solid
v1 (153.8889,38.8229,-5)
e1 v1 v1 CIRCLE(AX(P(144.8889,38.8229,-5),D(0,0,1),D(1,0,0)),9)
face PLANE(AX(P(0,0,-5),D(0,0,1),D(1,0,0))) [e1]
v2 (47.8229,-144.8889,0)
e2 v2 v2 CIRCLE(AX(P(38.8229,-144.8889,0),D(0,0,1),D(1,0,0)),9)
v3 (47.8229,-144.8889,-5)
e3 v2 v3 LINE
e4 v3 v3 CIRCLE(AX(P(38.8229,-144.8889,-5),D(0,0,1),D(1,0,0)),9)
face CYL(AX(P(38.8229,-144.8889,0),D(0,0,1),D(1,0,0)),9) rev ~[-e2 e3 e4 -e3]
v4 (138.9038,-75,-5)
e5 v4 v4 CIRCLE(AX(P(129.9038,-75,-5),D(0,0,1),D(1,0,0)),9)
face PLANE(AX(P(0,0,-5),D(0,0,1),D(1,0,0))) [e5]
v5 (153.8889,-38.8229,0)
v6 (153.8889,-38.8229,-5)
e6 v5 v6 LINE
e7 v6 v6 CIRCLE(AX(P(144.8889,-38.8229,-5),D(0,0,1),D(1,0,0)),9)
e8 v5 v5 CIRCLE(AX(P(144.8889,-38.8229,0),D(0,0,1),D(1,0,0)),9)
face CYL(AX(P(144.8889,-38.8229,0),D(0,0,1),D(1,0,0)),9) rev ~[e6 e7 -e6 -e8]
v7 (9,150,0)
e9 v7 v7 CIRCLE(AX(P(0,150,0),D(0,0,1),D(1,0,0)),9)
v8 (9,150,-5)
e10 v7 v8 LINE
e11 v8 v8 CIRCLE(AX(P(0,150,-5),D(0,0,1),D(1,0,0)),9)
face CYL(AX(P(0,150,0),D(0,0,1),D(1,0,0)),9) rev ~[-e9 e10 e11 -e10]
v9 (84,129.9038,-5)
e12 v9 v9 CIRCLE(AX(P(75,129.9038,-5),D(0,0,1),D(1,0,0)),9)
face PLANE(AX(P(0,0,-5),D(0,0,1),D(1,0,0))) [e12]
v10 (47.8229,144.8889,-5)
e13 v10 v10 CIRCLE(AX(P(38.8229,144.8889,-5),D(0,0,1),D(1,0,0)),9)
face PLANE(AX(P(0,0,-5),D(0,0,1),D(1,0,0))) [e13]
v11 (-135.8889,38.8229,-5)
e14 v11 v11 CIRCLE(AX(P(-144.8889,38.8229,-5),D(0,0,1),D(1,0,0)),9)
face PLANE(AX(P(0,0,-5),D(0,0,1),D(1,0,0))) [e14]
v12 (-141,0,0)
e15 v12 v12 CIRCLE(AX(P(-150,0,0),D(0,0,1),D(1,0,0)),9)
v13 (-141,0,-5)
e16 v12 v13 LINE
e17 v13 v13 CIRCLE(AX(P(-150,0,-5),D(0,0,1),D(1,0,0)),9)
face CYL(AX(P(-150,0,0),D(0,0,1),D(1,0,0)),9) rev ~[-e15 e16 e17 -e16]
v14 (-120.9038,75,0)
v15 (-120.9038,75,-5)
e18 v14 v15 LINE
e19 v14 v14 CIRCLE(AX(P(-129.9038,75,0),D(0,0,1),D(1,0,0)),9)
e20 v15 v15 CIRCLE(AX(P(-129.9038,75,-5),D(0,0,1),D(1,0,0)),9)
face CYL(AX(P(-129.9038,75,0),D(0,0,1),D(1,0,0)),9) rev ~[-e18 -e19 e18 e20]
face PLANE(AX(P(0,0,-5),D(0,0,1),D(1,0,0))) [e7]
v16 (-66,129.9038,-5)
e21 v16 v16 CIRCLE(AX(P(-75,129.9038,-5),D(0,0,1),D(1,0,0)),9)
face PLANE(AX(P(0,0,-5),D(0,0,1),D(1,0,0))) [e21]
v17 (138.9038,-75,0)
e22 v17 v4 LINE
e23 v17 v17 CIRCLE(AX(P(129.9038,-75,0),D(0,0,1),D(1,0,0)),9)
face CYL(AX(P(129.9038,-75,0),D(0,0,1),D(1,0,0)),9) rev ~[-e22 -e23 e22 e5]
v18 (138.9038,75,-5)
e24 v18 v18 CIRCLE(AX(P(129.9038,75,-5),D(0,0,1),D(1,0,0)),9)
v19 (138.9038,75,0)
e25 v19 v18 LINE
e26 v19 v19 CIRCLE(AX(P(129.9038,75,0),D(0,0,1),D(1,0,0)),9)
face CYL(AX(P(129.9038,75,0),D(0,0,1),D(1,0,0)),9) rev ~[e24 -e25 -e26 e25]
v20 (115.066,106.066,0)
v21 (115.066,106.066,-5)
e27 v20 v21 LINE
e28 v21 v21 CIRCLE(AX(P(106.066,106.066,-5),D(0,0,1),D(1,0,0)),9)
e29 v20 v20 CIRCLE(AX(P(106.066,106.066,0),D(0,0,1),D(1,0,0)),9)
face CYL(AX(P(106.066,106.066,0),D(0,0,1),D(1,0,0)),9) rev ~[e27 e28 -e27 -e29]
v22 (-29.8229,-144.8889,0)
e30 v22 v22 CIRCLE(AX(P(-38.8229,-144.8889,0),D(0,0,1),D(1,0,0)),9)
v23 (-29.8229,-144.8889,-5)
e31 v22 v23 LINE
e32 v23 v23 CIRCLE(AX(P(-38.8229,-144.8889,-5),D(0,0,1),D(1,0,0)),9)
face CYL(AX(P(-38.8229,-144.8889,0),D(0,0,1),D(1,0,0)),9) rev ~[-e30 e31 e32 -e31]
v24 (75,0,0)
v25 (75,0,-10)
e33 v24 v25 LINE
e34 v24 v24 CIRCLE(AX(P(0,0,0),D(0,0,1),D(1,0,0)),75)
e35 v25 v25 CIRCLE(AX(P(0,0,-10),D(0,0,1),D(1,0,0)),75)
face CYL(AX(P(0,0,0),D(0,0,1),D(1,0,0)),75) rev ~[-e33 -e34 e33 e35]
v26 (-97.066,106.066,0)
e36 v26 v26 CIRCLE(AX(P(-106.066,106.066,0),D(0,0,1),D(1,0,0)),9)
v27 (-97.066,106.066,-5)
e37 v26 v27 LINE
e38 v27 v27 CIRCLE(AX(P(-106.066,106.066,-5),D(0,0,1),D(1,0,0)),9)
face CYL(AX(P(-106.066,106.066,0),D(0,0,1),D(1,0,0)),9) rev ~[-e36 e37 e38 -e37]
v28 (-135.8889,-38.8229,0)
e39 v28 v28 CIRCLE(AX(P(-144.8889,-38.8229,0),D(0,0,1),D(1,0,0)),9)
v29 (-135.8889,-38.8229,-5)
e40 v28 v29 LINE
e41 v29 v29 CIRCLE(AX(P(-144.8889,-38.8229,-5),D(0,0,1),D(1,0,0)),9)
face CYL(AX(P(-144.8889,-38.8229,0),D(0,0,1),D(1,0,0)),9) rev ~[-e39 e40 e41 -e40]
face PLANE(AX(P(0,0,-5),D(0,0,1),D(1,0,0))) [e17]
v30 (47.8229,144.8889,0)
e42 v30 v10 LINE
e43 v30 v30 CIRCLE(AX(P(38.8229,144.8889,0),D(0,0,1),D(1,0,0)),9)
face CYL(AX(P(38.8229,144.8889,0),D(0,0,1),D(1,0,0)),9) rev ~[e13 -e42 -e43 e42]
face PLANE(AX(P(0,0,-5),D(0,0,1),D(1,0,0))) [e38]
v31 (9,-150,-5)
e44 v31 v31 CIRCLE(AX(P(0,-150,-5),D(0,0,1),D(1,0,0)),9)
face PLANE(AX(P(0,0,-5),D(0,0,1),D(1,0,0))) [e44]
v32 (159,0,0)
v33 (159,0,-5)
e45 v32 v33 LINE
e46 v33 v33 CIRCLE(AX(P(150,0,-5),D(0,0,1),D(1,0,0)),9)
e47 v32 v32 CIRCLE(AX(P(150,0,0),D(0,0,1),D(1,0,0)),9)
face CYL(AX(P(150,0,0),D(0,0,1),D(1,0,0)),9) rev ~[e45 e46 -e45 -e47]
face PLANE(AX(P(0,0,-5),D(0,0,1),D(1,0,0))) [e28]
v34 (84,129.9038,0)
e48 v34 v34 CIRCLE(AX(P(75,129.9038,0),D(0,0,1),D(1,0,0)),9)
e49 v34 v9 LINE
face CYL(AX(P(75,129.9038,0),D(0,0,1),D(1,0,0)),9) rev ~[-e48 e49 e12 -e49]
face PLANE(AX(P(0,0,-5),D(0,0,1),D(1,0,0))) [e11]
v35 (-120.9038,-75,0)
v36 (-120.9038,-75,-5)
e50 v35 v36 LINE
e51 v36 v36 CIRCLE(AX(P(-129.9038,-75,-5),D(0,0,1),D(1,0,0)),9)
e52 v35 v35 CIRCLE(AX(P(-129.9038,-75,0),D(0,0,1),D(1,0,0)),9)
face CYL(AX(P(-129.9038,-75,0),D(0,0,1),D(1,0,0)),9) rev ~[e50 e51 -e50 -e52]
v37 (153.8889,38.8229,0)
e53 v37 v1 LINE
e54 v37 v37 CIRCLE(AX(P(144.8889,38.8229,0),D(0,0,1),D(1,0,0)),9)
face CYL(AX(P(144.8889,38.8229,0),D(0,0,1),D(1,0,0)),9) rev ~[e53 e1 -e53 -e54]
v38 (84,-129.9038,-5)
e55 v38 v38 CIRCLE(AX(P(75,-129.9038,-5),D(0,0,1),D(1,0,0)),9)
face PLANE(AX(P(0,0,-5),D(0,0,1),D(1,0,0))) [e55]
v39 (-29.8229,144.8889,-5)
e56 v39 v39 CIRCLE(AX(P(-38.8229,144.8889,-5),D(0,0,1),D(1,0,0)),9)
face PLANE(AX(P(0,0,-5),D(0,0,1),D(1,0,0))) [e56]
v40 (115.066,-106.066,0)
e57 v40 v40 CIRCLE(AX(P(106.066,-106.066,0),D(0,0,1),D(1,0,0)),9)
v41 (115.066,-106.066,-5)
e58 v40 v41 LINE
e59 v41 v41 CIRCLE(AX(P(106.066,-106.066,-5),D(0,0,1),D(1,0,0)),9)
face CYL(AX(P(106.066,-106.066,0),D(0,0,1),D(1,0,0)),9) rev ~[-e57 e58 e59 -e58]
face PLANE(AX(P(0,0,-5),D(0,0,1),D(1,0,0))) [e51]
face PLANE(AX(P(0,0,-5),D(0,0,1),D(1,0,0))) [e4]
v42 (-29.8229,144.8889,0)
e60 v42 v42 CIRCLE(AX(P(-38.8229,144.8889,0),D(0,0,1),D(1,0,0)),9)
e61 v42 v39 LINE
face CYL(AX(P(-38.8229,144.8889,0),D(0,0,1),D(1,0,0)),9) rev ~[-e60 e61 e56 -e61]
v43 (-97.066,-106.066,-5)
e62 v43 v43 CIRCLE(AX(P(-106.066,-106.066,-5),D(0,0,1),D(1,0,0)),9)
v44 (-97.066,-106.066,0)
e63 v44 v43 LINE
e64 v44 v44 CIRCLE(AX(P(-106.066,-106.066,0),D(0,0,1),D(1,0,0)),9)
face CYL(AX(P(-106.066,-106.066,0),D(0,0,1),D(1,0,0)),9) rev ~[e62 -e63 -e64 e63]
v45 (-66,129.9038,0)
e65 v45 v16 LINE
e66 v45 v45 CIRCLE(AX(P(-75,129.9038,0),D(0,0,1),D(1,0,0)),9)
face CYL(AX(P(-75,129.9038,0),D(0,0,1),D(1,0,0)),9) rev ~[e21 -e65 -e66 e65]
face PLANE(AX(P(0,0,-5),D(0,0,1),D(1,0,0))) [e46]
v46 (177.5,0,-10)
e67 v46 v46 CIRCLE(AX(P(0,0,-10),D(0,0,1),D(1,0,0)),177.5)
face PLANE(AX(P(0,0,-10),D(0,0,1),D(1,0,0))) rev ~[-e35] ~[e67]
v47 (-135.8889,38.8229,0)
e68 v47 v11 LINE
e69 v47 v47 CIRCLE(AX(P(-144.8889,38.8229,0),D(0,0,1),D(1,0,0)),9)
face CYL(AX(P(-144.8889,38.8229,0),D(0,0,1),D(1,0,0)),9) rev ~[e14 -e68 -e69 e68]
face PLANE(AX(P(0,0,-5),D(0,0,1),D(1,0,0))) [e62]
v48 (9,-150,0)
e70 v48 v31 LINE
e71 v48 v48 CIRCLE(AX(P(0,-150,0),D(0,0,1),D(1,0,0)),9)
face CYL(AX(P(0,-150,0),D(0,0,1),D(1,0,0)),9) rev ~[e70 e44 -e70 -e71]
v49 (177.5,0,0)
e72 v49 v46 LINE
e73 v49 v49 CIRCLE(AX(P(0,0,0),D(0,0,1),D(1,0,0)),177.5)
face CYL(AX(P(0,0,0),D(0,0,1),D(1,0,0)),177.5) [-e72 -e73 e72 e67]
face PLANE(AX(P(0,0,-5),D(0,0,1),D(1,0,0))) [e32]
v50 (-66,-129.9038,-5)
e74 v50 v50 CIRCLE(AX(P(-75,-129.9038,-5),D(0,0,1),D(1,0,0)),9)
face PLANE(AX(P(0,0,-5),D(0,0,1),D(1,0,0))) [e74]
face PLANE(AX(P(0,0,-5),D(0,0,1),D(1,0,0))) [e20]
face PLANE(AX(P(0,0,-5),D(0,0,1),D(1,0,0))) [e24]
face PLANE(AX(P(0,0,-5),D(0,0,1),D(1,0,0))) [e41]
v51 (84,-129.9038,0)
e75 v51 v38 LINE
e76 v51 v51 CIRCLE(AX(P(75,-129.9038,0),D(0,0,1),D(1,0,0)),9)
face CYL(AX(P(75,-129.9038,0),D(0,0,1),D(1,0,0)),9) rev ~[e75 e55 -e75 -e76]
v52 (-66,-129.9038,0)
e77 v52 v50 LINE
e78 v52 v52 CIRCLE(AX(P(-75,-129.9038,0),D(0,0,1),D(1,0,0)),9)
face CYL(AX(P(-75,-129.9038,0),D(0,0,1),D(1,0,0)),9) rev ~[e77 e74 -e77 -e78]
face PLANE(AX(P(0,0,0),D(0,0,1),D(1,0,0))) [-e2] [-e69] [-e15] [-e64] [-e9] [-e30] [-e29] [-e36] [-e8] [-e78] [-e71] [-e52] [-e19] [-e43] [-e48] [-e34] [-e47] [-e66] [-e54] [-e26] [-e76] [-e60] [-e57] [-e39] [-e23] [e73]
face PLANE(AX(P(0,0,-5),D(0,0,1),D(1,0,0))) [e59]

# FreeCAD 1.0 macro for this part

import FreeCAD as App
import Part
import Sketcher

V = App.Vector

doc = App.newDocument("Part")
params = doc.addObject("Spreadsheet::Sheet", "Params")
for row, (alias, value) in enumerate([
    ("sketch1_diameter", "355 mm"),
    ("pad1_length", "10 mm"),
    ("sketch2_diameter", "18 mm"),
    ("pocket1_length", "5 mm"),
    ("sketch3_diameter", "150 mm"),
    ("pocket2_length", "10 mm"),
], start=1):
    params.set(f"A{row}", alias)
    params.set(f"B{row}", "=" + value)
    params.setAlias(f"B{row}", alias)

body = doc.addObject("PartDesign::Body", "Body")

sketch1 = doc.addObject("Sketcher::SketchObject", "Sketch")
body.addObject(sketch1)
sketch1.AttachmentSupport = (doc.XY_Plane, [""])
sketch1.MapMode = "FlatFace"
sketch1.addGeometry(Part.Circle(V(0, 0, 0), V(0, 0, 1), 177.5), False)
sketch1.addConstraint(Sketcher.Constraint("Coincident", 0, 3, -1, 1))
sketch1.addConstraint(Sketcher.Constraint("Diameter", 0, 355.0))
sketch1.setExpression("Constraints[1]", "Params.sketch1_diameter")
pad1 = doc.addObject("PartDesign::Pad", "Pad")
body.addObject(pad1)
pad1.Profile = sketch1
pad1.setExpression("Length", "Params.pad1_length")
pad1.Reversed = True

sketch2 = doc.addObject("Sketcher::SketchObject", "Sketch001")
body.addObject(sketch2)
sketch2.AttachmentSupport = (doc.XY_Plane, [""])
sketch2.MapMode = "FlatFace"
sketch2.addGeometry(Part.Circle(V(150, 0, 0), V(0, 0, 1), 9), False)
sketch2.addGeometry(Part.Circle(V(144.8889, 38.8229, 0), V(0, 0, 1), 9), False)
sketch2.addGeometry(Part.Circle(V(129.9038, 75, 0), V(0, 0, 1), 9), False)
sketch2.addGeometry(Part.Circle(V(106.066, 106.066, 0), V(0, 0, 1), 9), False)
sketch2.addGeometry(Part.Circle(V(75, 129.9038, 0), V(0, 0, 1), 9), False)
sketch2.addGeometry(Part.Circle(V(38.8229, 144.8889, 0), V(0, 0, 1), 9), False)
sketch2.addGeometry(Part.Circle(V(0, 150, 0), V(0, 0, 1), 9), False)
sketch2.addGeometry(Part.Circle(V(-38.8229, 144.8889, 0), V(0, 0, 1), 9), False)
sketch2.addGeometry(Part.Circle(V(-75, 129.9038, 0), V(0, 0, 1), 9), False)
sketch2.addGeometry(Part.Circle(V(-106.066, 106.066, 0), V(0, 0, 1), 9), False)
sketch2.addGeometry(Part.Circle(V(-129.9038, 75, 0), V(0, 0, 1), 9), False)
sketch2.addGeometry(Part.Circle(V(-144.8889, 38.8229, 0), V(0, 0, 1), 9), False)
sketch2.addGeometry(Part.Circle(V(-150, 0, 0), V(0, 0, 1), 9), False)
sketch2.addGeometry(Part.Circle(V(-144.8889, -38.8229, 0), V(0, 0, 1), 9), False)
sketch2.addGeometry(Part.Circle(V(-129.9038, -75, 0), V(0, 0, 1), 9), False)
sketch2.addGeometry(Part.Circle(V(-106.066, -106.066, 0), V(0, 0, 1), 9), False)
sketch2.addGeometry(Part.Circle(V(-75, -129.9038, 0), V(0, 0, 1), 9), False)
sketch2.addGeometry(Part.Circle(V(-38.8229, -144.8889, 0), V(0, 0, 1), 9), False)
sketch2.addGeometry(Part.Circle(V(0, -150, 0), V(0, 0, 1), 9), False)
sketch2.addGeometry(Part.Circle(V(38.8229, -144.8889, 0), V(0, 0, 1), 9), False)
sketch2.addGeometry(Part.Circle(V(75, -129.9038, 0), V(0, 0, 1), 9), False)
sketch2.addGeometry(Part.Circle(V(106.066, -106.066, 0), V(0, 0, 1), 9), False)
sketch2.addGeometry(Part.Circle(V(129.9038, -75, 0), V(0, 0, 1), 9), False)
sketch2.addGeometry(Part.Circle(V(144.8889, -38.8229, 0), V(0, 0, 1), 9), False)
sketch2.addConstraint(Sketcher.Constraint("Equal", 0, 1))
sketch2.addConstraint(Sketcher.Constraint("Equal", 1, 2))
sketch2.addConstraint(Sketcher.Constraint("Equal", 2, 3))
sketch2.addConstraint(Sketcher.Constraint("Equal", 3, 4))
sketch2.addConstraint(Sketcher.Constraint("Equal", 4, 5))
sketch2.addConstraint(Sketcher.Constraint("Equal", 5, 6))
sketch2.addConstraint(Sketcher.Constraint("Equal", 6, 7))
sketch2.addConstraint(Sketcher.Constraint("Equal", 7, 8))
sketch2.addConstraint(Sketcher.Constraint("Equal", 8, 9))
sketch2.addConstraint(Sketcher.Constraint("Equal", 9, 10))
sketch2.addConstraint(Sketcher.Constraint("Equal", 10, 11))
sketch2.addConstraint(Sketcher.Constraint("Equal", 11, 12))
sketch2.addConstraint(Sketcher.Constraint("Equal", 12, 13))
sketch2.addConstraint(Sketcher.Constraint("Equal", 13, 14))
sketch2.addConstraint(Sketcher.Constraint("Equal", 14, 15))
sketch2.addConstraint(Sketcher.Constraint("Equal", 15, 16))
sketch2.addConstraint(Sketcher.Constraint("Equal", 16, 17))
sketch2.addConstraint(Sketcher.Constraint("Equal", 17, 18))
sketch2.addConstraint(Sketcher.Constraint("Equal", 18, 19))
sketch2.addConstraint(Sketcher.Constraint("Equal", 19, 20))
sketch2.addConstraint(Sketcher.Constraint("Equal", 20, 21))
sketch2.addConstraint(Sketcher.Constraint("Equal", 21, 22))
sketch2.addConstraint(Sketcher.Constraint("Equal", 22, 23))
sketch2.addConstraint(Sketcher.Constraint("Symmetric", 0, 3, 12, 3, -1, 1))
sketch2.addConstraint(Sketcher.Constraint("Symmetric", 1, 3, 13, 3, -1, 1))
sketch2.addConstraint(Sketcher.Constraint("Symmetric", 2, 3, 14, 3, -1, 1))
sketch2.addConstraint(Sketcher.Constraint("Symmetric", 3, 3, 15, 3, -1, 1))
sketch2.addConstraint(Sketcher.Constraint("Symmetric", 4, 3, 16, 3, -1, 1))
sketch2.addConstraint(Sketcher.Constraint("Symmetric", 5, 3, 17, 3, -1, 1))
sketch2.addConstraint(Sketcher.Constraint("Symmetric", 6, 3, 18, 3, -1, 1))
sketch2.addConstraint(Sketcher.Constraint("Symmetric", 7, 3, 19, 3, -1, 1))
sketch2.addConstraint(Sketcher.Constraint("Symmetric", 8, 3, 20, 3, -1, 1))
sketch2.addConstraint(Sketcher.Constraint("Symmetric", 9, 3, 21, 3, -1, 1))
sketch2.addConstraint(Sketcher.Constraint("Symmetric", 10, 3, 22, 3, -1, 1))
sketch2.addConstraint(Sketcher.Constraint("Symmetric", 11, 3, 23, 3, -1, 1))
sketch2.addConstraint(Sketcher.Constraint("Symmetric", 5, 3, 7, 3, -2))
sketch2.addConstraint(Sketcher.Constraint("Symmetric", 4, 3, 8, 3, -2))
sketch2.addConstraint(Sketcher.Constraint("Symmetric", 3, 3, 9, 3, -2))
sketch2.addConstraint(Sketcher.Constraint("Symmetric", 2, 3, 10, 3, -2))
sketch2.addConstraint(Sketcher.Constraint("Symmetric", 1, 3, 11, 3, -2))
sketch2.addConstraint(Sketcher.Constraint("PointOnObject", 0, 3, -1))
sketch2.addConstraint(Sketcher.Constraint("PointOnObject", 6, 3, -2))
sketch2.addConstraint(Sketcher.Constraint("Diameter", 0, 18.0))
sketch2.addConstraint(Sketcher.Constraint("DistanceX", -1, 1, 0, 3, 150.0))
sketch2.addConstraint(Sketcher.Constraint("DistanceY", -1, 1, 6, 3, 150.0))
sketch2.addConstraint(Sketcher.Constraint("DistanceX", 8, 3, 4, 3, 150.0))
sketch2.addConstraint(Sketcher.Constraint("DistanceY", 14, 3, 10, 3, 150.0))
sketch2.addConstraint(Sketcher.Constraint("DistanceX", -1, 1, 1, 3, 144.889))
sketch2.addConstraint(Sketcher.Constraint("DistanceY", -1, 1, 1, 3, 38.823))
sketch2.addConstraint(Sketcher.Constraint("DistanceX", -1, 1, 3, 3, 106.066))
sketch2.addConstraint(Sketcher.Constraint("DistanceY", -1, 1, 3, 3, 106.066))
sketch2.addConstraint(Sketcher.Constraint("DistanceX", -1, 1, 5, 3, 38.823))
sketch2.addConstraint(Sketcher.Constraint("DistanceY", -1, 1, 5, 3, 144.889))
sketch2.addConstraint(Sketcher.Constraint("DistanceX", 2, 3, 1, 3, 14.985))
sketch2.addConstraint(Sketcher.Constraint("DistanceY", 1, 3, 4, 3, 91.081))
sketch2.setExpression("Constraints[42]", "Params.sketch2_diameter")
pocket1 = doc.addObject("PartDesign::Pocket", "Pocket")
body.addObject(pocket1)
pocket1.Profile = sketch2
pocket1.setExpression("Length", "Params.pocket1_length")

sketch3 = doc.addObject("Sketcher::SketchObject", "Sketch002")
body.addObject(sketch3)
sketch3.AttachmentSupport = (doc.XY_Plane, [""])
sketch3.MapMode = "FlatFace"
sketch3.addGeometry(Part.Circle(V(0, 0, 0), V(0, 0, 1), 75), False)
sketch3.addConstraint(Sketcher.Constraint("Coincident", 0, 3, -1, 1))
sketch3.addConstraint(Sketcher.Constraint("Diameter", 0, 150.0))
sketch3.setExpression("Constraints[1]", "Params.sketch3_diameter")
pocket2 = doc.addObject("PartDesign::Pocket", "Pocket001")
body.addObject(pocket2)
pocket2.Profile = sketch3
pocket2.setExpression("Length", "Params.pocket2_length")

doc.recompute()
